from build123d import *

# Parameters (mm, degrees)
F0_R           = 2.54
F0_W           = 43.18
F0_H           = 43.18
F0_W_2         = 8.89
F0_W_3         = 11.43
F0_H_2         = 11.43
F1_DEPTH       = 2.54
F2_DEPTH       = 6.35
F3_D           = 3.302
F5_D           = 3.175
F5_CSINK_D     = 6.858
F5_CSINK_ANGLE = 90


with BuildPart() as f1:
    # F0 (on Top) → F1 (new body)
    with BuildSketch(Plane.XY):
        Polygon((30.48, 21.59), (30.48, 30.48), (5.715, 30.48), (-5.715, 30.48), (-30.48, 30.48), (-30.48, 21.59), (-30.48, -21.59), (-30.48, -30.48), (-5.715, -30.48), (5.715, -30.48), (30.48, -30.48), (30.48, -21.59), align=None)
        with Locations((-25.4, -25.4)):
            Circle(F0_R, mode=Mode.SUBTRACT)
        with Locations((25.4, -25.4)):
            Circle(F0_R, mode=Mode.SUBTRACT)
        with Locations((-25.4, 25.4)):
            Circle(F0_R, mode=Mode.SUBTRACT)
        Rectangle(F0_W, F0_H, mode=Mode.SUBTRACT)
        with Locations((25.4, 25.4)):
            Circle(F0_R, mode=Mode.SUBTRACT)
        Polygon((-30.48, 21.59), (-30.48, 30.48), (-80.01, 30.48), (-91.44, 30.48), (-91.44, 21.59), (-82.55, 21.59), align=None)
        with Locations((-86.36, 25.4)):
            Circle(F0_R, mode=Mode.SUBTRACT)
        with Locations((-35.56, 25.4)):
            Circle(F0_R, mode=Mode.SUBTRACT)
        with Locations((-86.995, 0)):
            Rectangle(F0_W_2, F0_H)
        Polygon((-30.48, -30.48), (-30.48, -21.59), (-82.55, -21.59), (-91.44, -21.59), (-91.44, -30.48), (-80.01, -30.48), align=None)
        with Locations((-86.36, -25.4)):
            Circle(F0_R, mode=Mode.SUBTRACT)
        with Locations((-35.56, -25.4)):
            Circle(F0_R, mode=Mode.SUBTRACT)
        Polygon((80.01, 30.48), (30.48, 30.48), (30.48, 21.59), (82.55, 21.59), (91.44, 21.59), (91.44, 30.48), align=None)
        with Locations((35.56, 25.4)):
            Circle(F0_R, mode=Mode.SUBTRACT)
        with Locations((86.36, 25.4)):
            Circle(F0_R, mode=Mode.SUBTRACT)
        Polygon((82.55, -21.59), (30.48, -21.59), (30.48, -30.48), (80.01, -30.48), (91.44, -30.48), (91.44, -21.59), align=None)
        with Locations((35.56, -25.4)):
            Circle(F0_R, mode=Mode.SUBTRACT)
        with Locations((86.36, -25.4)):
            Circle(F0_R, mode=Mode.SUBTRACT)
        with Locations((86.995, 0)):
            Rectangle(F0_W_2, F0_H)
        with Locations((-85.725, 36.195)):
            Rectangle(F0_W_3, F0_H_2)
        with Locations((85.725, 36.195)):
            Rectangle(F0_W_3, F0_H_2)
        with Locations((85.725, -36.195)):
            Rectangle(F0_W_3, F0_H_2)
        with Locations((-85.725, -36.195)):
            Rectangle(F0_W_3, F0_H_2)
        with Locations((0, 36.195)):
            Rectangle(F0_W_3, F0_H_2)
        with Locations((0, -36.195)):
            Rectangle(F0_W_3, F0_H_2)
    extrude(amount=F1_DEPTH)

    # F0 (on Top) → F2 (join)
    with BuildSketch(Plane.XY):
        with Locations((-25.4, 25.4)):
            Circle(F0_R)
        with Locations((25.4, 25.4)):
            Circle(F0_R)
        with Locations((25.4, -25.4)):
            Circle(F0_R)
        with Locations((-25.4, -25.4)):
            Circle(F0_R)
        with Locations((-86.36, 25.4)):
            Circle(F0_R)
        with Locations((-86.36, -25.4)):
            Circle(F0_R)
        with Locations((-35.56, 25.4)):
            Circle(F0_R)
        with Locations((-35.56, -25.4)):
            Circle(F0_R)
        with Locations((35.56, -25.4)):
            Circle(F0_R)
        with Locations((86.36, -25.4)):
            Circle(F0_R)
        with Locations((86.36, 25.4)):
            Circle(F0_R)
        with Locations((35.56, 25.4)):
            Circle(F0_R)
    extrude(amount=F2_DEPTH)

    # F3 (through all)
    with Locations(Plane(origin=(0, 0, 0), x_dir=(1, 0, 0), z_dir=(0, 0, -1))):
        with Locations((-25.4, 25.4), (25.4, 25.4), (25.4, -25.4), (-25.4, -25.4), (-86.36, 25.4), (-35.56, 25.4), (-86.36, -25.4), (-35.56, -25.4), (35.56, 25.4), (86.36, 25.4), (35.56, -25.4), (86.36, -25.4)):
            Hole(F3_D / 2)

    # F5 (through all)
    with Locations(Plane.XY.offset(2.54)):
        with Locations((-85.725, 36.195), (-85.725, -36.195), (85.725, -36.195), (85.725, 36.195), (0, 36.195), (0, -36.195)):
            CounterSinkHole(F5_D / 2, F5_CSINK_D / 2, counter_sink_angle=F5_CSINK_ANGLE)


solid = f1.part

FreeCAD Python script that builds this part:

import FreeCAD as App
import Part
import Sketcher
Q = App.Units.Quantity


def add_polygon(sketch, points):
    """Adds a closed chain of lines whose ends are joined by coincident constraints."""
    first, n = sketch.GeometryCount, len(points)
    for a, b in zip(points, points[1:] + points[:1]):
        sketch.addGeometry(Part.LineSegment(App.Vector(*a, 0), App.Vector(*b, 0)), False)
    for i in range(n):
        sketch.addConstraint(Sketcher.Constraint("Coincident", first + i, 2, first + (i + 1) % n, 1))

doc = App.newDocument("Part")
body = doc.addObject("PartDesign::Body", "Body")

# Sketch on XY plane
sketch1 = doc.addObject("Sketcher::SketchObject", "Sketch")
body.addObject(sketch1)
sketch1.AttachmentSupport = (doc.XY_Plane, [""])
sketch1.MapMode = "FlatFace"
add_polygon(sketch1, [(-80, -30.5), (-5.7, -30.5), (-5.7, -41.9), (5.7, -41.9), (5.7, -30.5), (80, -30.5), (80, -41.9), (91.4, -41.9), (91.4, 41.9), (80, 41.9), (80, 30.5), (5.7, 30.5), (5.7, 41.9), (-5.7, 41.9), (-5.7, 30.5), (-80, 30.5), (-80, 41.9), (-91.4, 41.9), (-91.4, -41.9), (-80, -41.9)])  # lines 0-19
add_polygon(sketch1, [(30.5, 21.6), (82.5, 21.6), (82.5, -21.6), (30.5, -21.6)])  # lines 20-23
sketch1.addGeometry(Part.Circle(App.Vector(-86.4, -25.4, 0), App.Vector(0, 0, 1), 2.5), False)  # 24
sketch1.addGeometry(Part.Circle(App.Vector(-35.6, -25.4, 0), App.Vector(0, 0, 1), 2.5), False)  # 25
sketch1.addGeometry(Part.Circle(App.Vector(-25.4, -25.4, 0), App.Vector(0, 0, 1), 2.5), False)  # 26
sketch1.addGeometry(Part.Circle(App.Vector(25.4, -25.4, 0), App.Vector(0, 0, 1), 2.5), False)  # 27
sketch1.addGeometry(Part.Circle(App.Vector(35.6, -25.4, 0), App.Vector(0, 0, 1), 2.5), False)  # 28
sketch1.addGeometry(Part.Circle(App.Vector(86.4, -25.4, 0), App.Vector(0, 0, 1), 2.5), False)  # 29
add_polygon(sketch1, [(-82.5, -21.6), (-82.5, 21.6), (-30.5, 21.6), (-30.5, -21.6)])  # lines 30-33
sketch1.addGeometry(Part.Circle(App.Vector(-86.4, 25.4, 0), App.Vector(0, 0, 1), 2.5), False)  # 34
sketch1.addGeometry(Part.Circle(App.Vector(-35.6, 25.4, 0), App.Vector(0, 0, 1), 2.5), False)  # 35
sketch1.addGeometry(Part.Circle(App.Vector(-25.4, 25.4, 0), App.Vector(0, 0, 1), 2.5), False)  # 36
add_polygon(sketch1, [(21.6, -21.6), (-21.6, -21.6), (-21.6, 21.6), (21.6, 21.6)])  # lines 37-40
sketch1.addGeometry(Part.Circle(App.Vector(25.4, 25.4, 0), App.Vector(0, 0, 1), 2.5), False)  # 41
sketch1.addGeometry(Part.Circle(App.Vector(35.6, 25.4, 0), App.Vector(0, 0, 1), 2.5), False)  # 42
sketch1.addGeometry(Part.Circle(App.Vector(86.4, 25.4, 0), App.Vector(0, 0, 1), 2.5), False)  # 43
sketch1.addConstraint([
    Sketcher.Constraint("Horizontal", 0),
    Sketcher.Constraint("Vertical", 1),
    Sketcher.Constraint("Horizontal", 2),
    Sketcher.Constraint("Vertical", 3),
    Sketcher.Constraint("Horizontal", 4),
    Sketcher.Constraint("Vertical", 5),
    Sketcher.Constraint("Horizontal", 6),
    Sketcher.Constraint("Vertical", 7),
    Sketcher.Constraint("Horizontal", 8),
    Sketcher.Constraint("Vertical", 9),
    Sketcher.Constraint("Horizontal", 10),
    Sketcher.Constraint("Vertical", 11),
    Sketcher.Constraint("Horizontal", 12),
    Sketcher.Constraint("Vertical", 13),
    Sketcher.Constraint("Horizontal", 14),
    Sketcher.Constraint("Vertical", 15),
    Sketcher.Constraint("Horizontal", 16),
    Sketcher.Constraint("Vertical", 17),
    Sketcher.Constraint("Horizontal", 18),
    Sketcher.Constraint("Vertical", 19),
    Sketcher.Constraint("Horizontal", 20),
    Sketcher.Constraint("Vertical", 21),
    Sketcher.Constraint("Horizontal", 22),
    Sketcher.Constraint("Vertical", 23),
    Sketcher.Constraint("Vertical", 30),
    Sketcher.Constraint("Horizontal", 31),
    Sketcher.Constraint("Vertical", 32),
    Sketcher.Constraint("Horizontal", 33),
    Sketcher.Constraint("Horizontal", 37),
    Sketcher.Constraint("Vertical", 38),
    Sketcher.Constraint("Horizontal", 39),
    Sketcher.Constraint("Vertical", 40),
    Sketcher.Constraint("Equal", 24, 25),
    Sketcher.Constraint("Equal", 25, 26),
    Sketcher.Constraint("Equal", 26, 27),
    Sketcher.Constraint("Equal", 27, 28),
    Sketcher.Constraint("Equal", 28, 29),
    Sketcher.Constraint("Equal", 29, 34),
    Sketcher.Constraint("Equal", 34, 35),
    Sketcher.Constraint("Equal", 35, 36),
    Sketcher.Constraint("Equal", 36, 41),
    Sketcher.Constraint("Equal", 41, 42),
    Sketcher.Constraint("Equal", 42, 43),
    Sketcher.Constraint("Symmetric", 29, 3, 34, 3, -1, 1),
    Sketcher.Constraint("Symmetric", 28, 3, 35, 3, -1, 1),
    Sketcher.Constraint("Symmetric", 27, 3, 36, 3, -1, 1),
    Sketcher.Constraint("Symmetric", 26, 3, 41, 3, -1, 1),
    Sketcher.Constraint("Symmetric", 25, 3, 42, 3, -1, 1),
    Sketcher.Constraint("Symmetric", 24, 3, 43, 3, -1, 1),
    Sketcher.Constraint("Symmetric", 0, 2, 10, 2, -1, 1),
    Sketcher.Constraint("Symmetric", 2, 2, 12, 2, -1, 1),
    Sketcher.Constraint("Symmetric", 4, 2, 14, 2, -1, 1),
    Sketcher.Constraint("Symmetric", 6, 2, 16, 2, -1, 1),
    Sketcher.Constraint("Symmetric", 8, 2, 18, 2, -1, 1),
    Sketcher.Constraint("Symmetric", 21, 2, 30, 2, -1, 1),
    Sketcher.Constraint("Symmetric", 23, 2, 32, 2, -1, 1),
    Sketcher.Constraint("Symmetric", 37, 2, 39, 2, -1, 1),
    Sketcher.Constraint("Symmetric", 26, 3, 27, 3, -2),
    Sketcher.Constraint("Symmetric", 25, 3, 28, 3, -2),
    Sketcher.Constraint("Symmetric", 24, 3, 29, 3, -2),
    Sketcher.Constraint("Symmetric", 0, 2, 3, 2, -2),
    Sketcher.Constraint("Symmetric", 8, 2, 15, 2, -2),
    Sketcher.Constraint("Horizontal", 24, 3, 25, 3),
    Sketcher.Constraint("Horizontal", 25, 3, 26, 3),
    Sketcher.Constraint("Horizontal", 2, 2, 5, 2),
    Sketcher.Constraint("Horizontal", 23, 2, 30, 2),
    Sketcher.Constraint("Horizontal", 33, 2, 37, 2),
    Sketcher.Constraint("Equal", 2, 6),
    Sketcher.Constraint("Equal", 18, 1),
    Sketcher.Constraint("Equal", 39, 21),
    Sketcher.Constraint("Diameter", 24, Q("0.2 in")),
    Sketcher.Constraint("DistanceX", 37, 2, 37, 1, Q("1.7 in")),
    Sketcher.Constraint("DistanceY", 7, 1, 7, 2, Q("3.3 in")),
    Sketcher.Constraint("DistanceY", 24, 3, -1, 1, Q("1 in")),
    Sketcher.Constraint("DistanceX", 26, 3, -1, 1, Q("1 in")),
    Sketcher.Constraint("DistanceX", 24, 3, 25, 3, Q("2 in")),
    Sketcher.Constraint("DistanceX", 2, 1, 2, 2, Q("0.45 in")),
    Sketcher.Constraint("DistanceX", 20, 1, 20, 2, Q("2.05 in")),
    Sketcher.Constraint("DistanceX", 24, 3, -1, 1, Q("3.4 in")),
    Sketcher.Constraint("DistanceX", -1, 1, 6, 2, Q("3.6 in")),
    Sketcher.Constraint("DistanceX", -1, 1, 22, 2, Q("1.2 in")),
])
pad1 = doc.addObject("PartDesign::Pad", "Pad")
body.addObject(pad1)
pad1.Profile = sketch1
pad1.Length = Q("0.1 in")

# Sketch on XY plane
sketch2 = doc.addObject("Sketcher::SketchObject", "Sketch001")
body.addObject(sketch2)
sketch2.AttachmentSupport = (doc.XY_Plane, [""])
sketch2.MapMode = "FlatFace"
sketch2.addGeometry([
    Part.Circle(App.Vector(-25.4, 25.4, 0), App.Vector(0, 0, 1), 2.5),  # 0
    Part.Circle(App.Vector(25.4, 25.4, 0), App.Vector(0, 0, 1), 2.5),  # 1
    Part.Circle(App.Vector(25.4, -25.4, 0), App.Vector(0, 0, 1), 2.5),  # 2
    Part.Circle(App.Vector(-25.4, -25.4, 0), App.Vector(0, 0, 1), 2.5),  # 3
    Part.Circle(App.Vector(-86.4, 25.4, 0), App.Vector(0, 0, 1), 2.5),  # 4
    Part.Circle(App.Vector(-86.4, -25.4, 0), App.Vector(0, 0, 1), 2.5),  # 5
    Part.Circle(App.Vector(-35.6, 25.4, 0), App.Vector(0, 0, 1), 2.5),  # 6
    Part.Circle(App.Vector(-35.6, -25.4, 0), App.Vector(0, 0, 1), 2.5),  # 7
    Part.Circle(App.Vector(35.6, -25.4, 0), App.Vector(0, 0, 1), 2.5),  # 8
    Part.Circle(App.Vector(86.4, -25.4, 0), App.Vector(0, 0, 1), 2.5),  # 9
    Part.Circle(App.Vector(86.4, 25.4, 0), App.Vector(0, 0, 1), 2.5),  # 10
    Part.Circle(App.Vector(35.6, 25.4, 0), App.Vector(0, 0, 1), 2.5),  # 11
], False)
sketch2.addConstraint([
    Sketcher.Constraint("Equal", 0, 1),
    Sketcher.Constraint("Equal", 1, 2),
    Sketcher.Constraint("Equal", 2, 3),
    Sketcher.Constraint("Equal", 3, 4),
    Sketcher.Constraint("Equal", 4, 5),
    Sketcher.Constraint("Equal", 5, 6),
    Sketcher.Constraint("Equal", 6, 7),
    Sketcher.Constraint("Equal", 7, 8),
    Sketcher.Constraint("Equal", 8, 9),
    Sketcher.Constraint("Equal", 9, 10),
    Sketcher.Constraint("Equal", 10, 11),
    Sketcher.Constraint("Symmetric", 0, 3, 2, 3, -1, 1),
    Sketcher.Constraint("Symmetric", 1, 3, 3, 3, -1, 1),
    Sketcher.Constraint("Symmetric", 6, 3, 8, 3, -1, 1),
    Sketcher.Constraint("Symmetric", 4, 3, 9, 3, -1, 1),
    Sketcher.Constraint("Symmetric", 5, 3, 10, 3, -1, 1),
    Sketcher.Constraint("Symmetric", 7, 3, 11, 3, -1, 1),
    Sketcher.Constraint("Symmetric", 0, 3, 1, 3, -2),
    Sketcher.Constraint("Symmetric", 7, 3, 8, 3, -2),
    Sketcher.Constraint("Symmetric", 5, 3, 9, 3, -2),
    Sketcher.Constraint("Horizontal", 1, 3, 4, 3),
    Sketcher.Constraint("Horizontal", 4, 3, 6, 3),
    Sketcher.Constraint("Diameter", 0, Q("0.2 in")),
    Sketcher.Constraint("DistanceX", 0, 3, -1, 1, Q("1 in")),
    Sketcher.Constraint("DistanceY", -1, 1, 0, 3, Q("1 in")),
    Sketcher.Constraint("DistanceX", 4, 3, 6, 3, Q("2 in")),
    Sketcher.Constraint("DistanceX", 4, 3, -1, 1, Q("3.4 in")),
])
pad2 = doc.addObject("PartDesign::Pad", "Pad001")
body.addObject(pad2)
pad2.Profile = sketch2
pad2.Length = Q("0.25 in")

# Sketch on XY plane
sketch3 = doc.addObject("Sketcher::SketchObject", "Sketch002")
body.addObject(sketch3)
sketch3.AttachmentSupport = (doc.XY_Plane, [""])
sketch3.MapMode = "FlatFace"
sketch3.addGeometry([
    Part.Circle(App.Vector(-25.4, -25.4, 0), App.Vector(0, 0, 1), 1.7),  # 0
    Part.Circle(App.Vector(25.4, -25.4, 0), App.Vector(0, 0, 1), 1.7),  # 1
    Part.Circle(App.Vector(25.4, 25.4, 0), App.Vector(0, 0, 1), 1.7),  # 2
    Part.Circle(App.Vector(-25.4, 25.4, 0), App.Vector(0, 0, 1), 1.7),  # 3
    Part.Circle(App.Vector(-86.4, -25.4, 0), App.Vector(0, 0, 1), 1.7),  # 4
    Part.Circle(App.Vector(-35.6, -25.4, 0), App.Vector(0, 0, 1), 1.7),  # 5
    Part.Circle(App.Vector(-86.4, 25.4, 0), App.Vector(0, 0, 1), 1.7),  # 6
    Part.Circle(App.Vector(-35.6, 25.4, 0), App.Vector(0, 0, 1), 1.7),  # 7
    Part.Circle(App.Vector(35.6, -25.4, 0), App.Vector(0, 0, 1), 1.7),  # 8
    Part.Circle(App.Vector(86.4, -25.4, 0), App.Vector(0, 0, 1), 1.7),  # 9
    Part.Circle(App.Vector(35.6, 25.4, 0), App.Vector(0, 0, 1), 1.7),  # 10
    Part.Circle(App.Vector(86.4, 25.4, 0), App.Vector(0, 0, 1), 1.7),  # 11
], False)
sketch3.addConstraint([
    Sketcher.Constraint("Equal", 0, 1),
    Sketcher.Constraint("Equal", 1, 2),
    Sketcher.Constraint("Equal", 2, 3),
    Sketcher.Constraint("Equal", 3, 4),
    Sketcher.Constraint("Equal", 4, 5),
    Sketcher.Constraint("Equal", 5, 6),
    Sketcher.Constraint("Equal", 6, 7),
    Sketcher.Constraint("Equal", 7, 8),
    Sketcher.Constraint("Equal", 8, 9),
    Sketcher.Constraint("Equal", 9, 10),
    Sketcher.Constraint("Equal", 10, 11),
    Sketcher.Constraint("Symmetric", 0, 3, 2, 3, -1, 1),
    Sketcher.Constraint("Symmetric", 1, 3, 3, 3, -1, 1),
    Sketcher.Constraint("Symmetric", 7, 3, 8, 3, -1, 1),
    Sketcher.Constraint("Symmetric", 6, 3, 9, 3, -1, 1),
    Sketcher.Constraint("Symmetric", 5, 3, 10, 3, -1, 1),
    Sketcher.Constraint("Symmetric", 4, 3, 11, 3, -1, 1),
    Sketcher.Constraint("Symmetric", 0, 3, 1, 3, -2),
    Sketcher.Constraint("Symmetric", 5, 3, 8, 3, -2),
    Sketcher.Constraint("Symmetric", 4, 3, 9, 3, -2),
    Sketcher.Constraint("Horizontal", 1, 3, 4, 3),
    Sketcher.Constraint("Horizontal", 4, 3, 5, 3),
    Sketcher.Constraint("Diameter", 0, Q("0.13 in")),
    Sketcher.Constraint("DistanceX", 0, 3, -1, 1, Q("1 in")),
    Sketcher.Constraint("DistanceY", 0, 3, -1, 1, Q("1 in")),
    Sketcher.Constraint("DistanceX", 4, 3, 5, 3, Q("2 in")),
    Sketcher.Constraint("DistanceX", 4, 3, -1, 1, Q("3.4 in")),
])
doc.recompute()
hole = doc.addObject("PartDesign::Hole", "Hole")
body.addObject(hole)
hole.Profile = sketch3
hole.ThreadType = "None"
hole.Diameter = Q("0.13 in")
hole.DepthType = "ThroughAll"
hole.Reversed = True

# Sketch on XY plane
sketch4 = doc.addObject("Sketcher::SketchObject", "Sketch003")
body.addObject(sketch4)
sketch4.AttachmentSupport = (doc.XY_Plane, [""])
sketch4.MapMode = "FlatFace"
sketch4.AttachmentOffset = App.Placement(App.Vector(0, 0, 0.1 * 25.4), App.Rotation())
sketch4.addGeometry([
    Part.Circle(App.Vector(-85.7, 36.2, 0), App.Vector(0, 0, 1), 1.6),  # 0
    Part.Circle(App.Vector(-85.7, -36.2, 0), App.Vector(0, 0, 1), 1.6),  # 1
    Part.Circle(App.Vector(85.7, -36.2, 0), App.Vector(0, 0, 1), 1.6),  # 2
    Part.Circle(App.Vector(85.7, 36.2, 0), App.Vector(0, 0, 1), 1.6),  # 3
    Part.Circle(App.Vector(0, 36.2, 0), App.Vector(0, 0, 1), 1.6),  # 4
    Part.Circle(App.Vector(0, -36.2, 0), App.Vector(0, 0, 1), 1.6),  # 5
], False)
sketch4.addConstraint([
    Sketcher.Constraint("Equal", 0, 1),
    Sketcher.Constraint("Equal", 1, 2),
    Sketcher.Constraint("Equal", 2, 3),
    Sketcher.Constraint("Equal", 3, 4),
    Sketcher.Constraint("Equal", 4, 5),
    Sketcher.Constraint("Symmetric", 0, 3, 2, 3, -1, 1),
    Sketcher.Constraint("Symmetric", 1, 3, 3, 3, -1, 1),
    Sketcher.Constraint("Symmetric", 4, 3, 5, 3, -1, 1),
    Sketcher.Constraint("Symmetric", 1, 3, 2, 3, -2),
    Sketcher.Constraint("PointOnObject", 4, 3, -2),
    Sketcher.Constraint("Horizontal", 3, 3, 4, 3),
    Sketcher.Constraint("Diameter", 0, Q("0.125 in")),
    Sketcher.Constraint("DistanceY", 1, 3, 0, 3, Q("2.85 in")),
    Sketcher.Constraint("DistanceX", 1, 3, 2, 3, Q("6.75 in")),
])
doc.recompute()
hole2 = doc.addObject("PartDesign::Hole", "Hole001")
body.addObject(hole2)
hole2.Profile = sketch4
hole2.ThreadType = "None"
hole2.Diameter = Q("0.125 in")
hole2.DepthType = "ThroughAll"
hole2.HoleCutType = "Countersink"
hole2.HoleCutDiameter = Q("0.27 in")
hole2.HoleCutCountersinkAngle = 90

doc.recompute()
